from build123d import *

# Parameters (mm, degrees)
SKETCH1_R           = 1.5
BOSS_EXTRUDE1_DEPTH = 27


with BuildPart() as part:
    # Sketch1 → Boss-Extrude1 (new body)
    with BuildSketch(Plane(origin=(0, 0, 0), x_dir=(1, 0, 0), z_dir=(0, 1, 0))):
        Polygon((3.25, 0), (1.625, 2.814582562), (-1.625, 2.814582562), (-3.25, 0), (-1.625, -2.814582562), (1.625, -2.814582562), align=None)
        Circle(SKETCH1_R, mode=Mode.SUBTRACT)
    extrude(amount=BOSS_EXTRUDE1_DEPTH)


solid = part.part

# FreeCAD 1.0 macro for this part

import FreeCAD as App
import Part
import Sketcher
Q = App.Units.Quantity

doc = App.newDocument("Part")
body = doc.addObject("PartDesign::Body", "Body")

# Sketch on XZ plane
sketch1 = body.newObject("Sketcher::SketchObject", "Sketch")
sketch1.AttachmentSupport = (doc.getObject("XZ_Plane"), [""])
sketch1.MapMode = "FlatFace"
sketch1.addGeometry(Part.LineSegment(App.Vector(3.2, 0, 0), App.Vector(1.6, -2.8, 0)), False)
sketch1.addGeometry(Part.LineSegment(App.Vector(1.6, -2.8, 0), App.Vector(-1.6, -2.8, 0)), False)
sketch1.addGeometry(Part.LineSegment(App.Vector(-1.6, -2.8, 0), App.Vector(-3.2, 0, 0)), False)
sketch1.addGeometry(Part.LineSegment(App.Vector(-3.2, 0, 0), App.Vector(-1.6, 2.8, 0)), False)
sketch1.addGeometry(Part.LineSegment(App.Vector(-1.6, 2.8, 0), App.Vector(1.6, 2.8, 0)), False)
sketch1.addGeometry(Part.LineSegment(App.Vector(1.6, 2.8, 0), App.Vector(3.2, 0, 0)), False)
sketch1.addGeometry(Part.Circle(App.Vector(0, 0, 0), App.Vector(0, 0, 1), 1.5), False)
sketch1.addConstraint(Sketcher.Constraint("Coincident", 0, 2, 1, 1))
sketch1.addConstraint(Sketcher.Constraint("Coincident", 1, 2, 2, 1))
sketch1.addConstraint(Sketcher.Constraint("Coincident", 2, 2, 3, 1))
sketch1.addConstraint(Sketcher.Constraint("Coincident", 3, 2, 4, 1))
sketch1.addConstraint(Sketcher.Constraint("Coincident", 4, 2, 5, 1))
sketch1.addConstraint(Sketcher.Constraint("Coincident", 5, 2, 0, 1))
sketch1.addConstraint(Sketcher.Constraint("Horizontal", 1))
sketch1.addConstraint(Sketcher.Constraint("Horizontal", 4))
sketch1.addConstraint(Sketcher.Constraint("Coincident", 6, 3, -1, 1))
sketch1.addConstraint(Sketcher.Constraint("Symmetric", 0, 2, 3, 2, -1, 1))
sketch1.addConstraint(Sketcher.Constraint("Symmetric", 2, 2, 5, 2, -1, 1))
sketch1.addConstraint(Sketcher.Constraint("PointOnObject", 2, 2, -1))
sketch1.addConstraint(Sketcher.Constraint("Parallel", 2, 5))
sketch1.addConstraint(Sketcher.Constraint("Vertical", 1, 2, 3, 2))
sketch1.addConstraint(Sketcher.Constraint("Diameter", 6, Q("3 mm")))
sketch1.addConstraint(Sketcher.Constraint("Angle", 0, Q("-120 deg")))
sketch1.addConstraint(Sketcher.Constraint("DistanceX", 1, 2, 1, 1, Q("3.25 mm")))
sketch1.addConstraint(Sketcher.Constraint("Distance", 0, Q("3.25 mm")))
pad1 = body.newObject("PartDesign::Pad", "Pad")
pad1.Profile = sketch1
pad1.Length = 27
pad1.Reversed = True

doc.recompute()
